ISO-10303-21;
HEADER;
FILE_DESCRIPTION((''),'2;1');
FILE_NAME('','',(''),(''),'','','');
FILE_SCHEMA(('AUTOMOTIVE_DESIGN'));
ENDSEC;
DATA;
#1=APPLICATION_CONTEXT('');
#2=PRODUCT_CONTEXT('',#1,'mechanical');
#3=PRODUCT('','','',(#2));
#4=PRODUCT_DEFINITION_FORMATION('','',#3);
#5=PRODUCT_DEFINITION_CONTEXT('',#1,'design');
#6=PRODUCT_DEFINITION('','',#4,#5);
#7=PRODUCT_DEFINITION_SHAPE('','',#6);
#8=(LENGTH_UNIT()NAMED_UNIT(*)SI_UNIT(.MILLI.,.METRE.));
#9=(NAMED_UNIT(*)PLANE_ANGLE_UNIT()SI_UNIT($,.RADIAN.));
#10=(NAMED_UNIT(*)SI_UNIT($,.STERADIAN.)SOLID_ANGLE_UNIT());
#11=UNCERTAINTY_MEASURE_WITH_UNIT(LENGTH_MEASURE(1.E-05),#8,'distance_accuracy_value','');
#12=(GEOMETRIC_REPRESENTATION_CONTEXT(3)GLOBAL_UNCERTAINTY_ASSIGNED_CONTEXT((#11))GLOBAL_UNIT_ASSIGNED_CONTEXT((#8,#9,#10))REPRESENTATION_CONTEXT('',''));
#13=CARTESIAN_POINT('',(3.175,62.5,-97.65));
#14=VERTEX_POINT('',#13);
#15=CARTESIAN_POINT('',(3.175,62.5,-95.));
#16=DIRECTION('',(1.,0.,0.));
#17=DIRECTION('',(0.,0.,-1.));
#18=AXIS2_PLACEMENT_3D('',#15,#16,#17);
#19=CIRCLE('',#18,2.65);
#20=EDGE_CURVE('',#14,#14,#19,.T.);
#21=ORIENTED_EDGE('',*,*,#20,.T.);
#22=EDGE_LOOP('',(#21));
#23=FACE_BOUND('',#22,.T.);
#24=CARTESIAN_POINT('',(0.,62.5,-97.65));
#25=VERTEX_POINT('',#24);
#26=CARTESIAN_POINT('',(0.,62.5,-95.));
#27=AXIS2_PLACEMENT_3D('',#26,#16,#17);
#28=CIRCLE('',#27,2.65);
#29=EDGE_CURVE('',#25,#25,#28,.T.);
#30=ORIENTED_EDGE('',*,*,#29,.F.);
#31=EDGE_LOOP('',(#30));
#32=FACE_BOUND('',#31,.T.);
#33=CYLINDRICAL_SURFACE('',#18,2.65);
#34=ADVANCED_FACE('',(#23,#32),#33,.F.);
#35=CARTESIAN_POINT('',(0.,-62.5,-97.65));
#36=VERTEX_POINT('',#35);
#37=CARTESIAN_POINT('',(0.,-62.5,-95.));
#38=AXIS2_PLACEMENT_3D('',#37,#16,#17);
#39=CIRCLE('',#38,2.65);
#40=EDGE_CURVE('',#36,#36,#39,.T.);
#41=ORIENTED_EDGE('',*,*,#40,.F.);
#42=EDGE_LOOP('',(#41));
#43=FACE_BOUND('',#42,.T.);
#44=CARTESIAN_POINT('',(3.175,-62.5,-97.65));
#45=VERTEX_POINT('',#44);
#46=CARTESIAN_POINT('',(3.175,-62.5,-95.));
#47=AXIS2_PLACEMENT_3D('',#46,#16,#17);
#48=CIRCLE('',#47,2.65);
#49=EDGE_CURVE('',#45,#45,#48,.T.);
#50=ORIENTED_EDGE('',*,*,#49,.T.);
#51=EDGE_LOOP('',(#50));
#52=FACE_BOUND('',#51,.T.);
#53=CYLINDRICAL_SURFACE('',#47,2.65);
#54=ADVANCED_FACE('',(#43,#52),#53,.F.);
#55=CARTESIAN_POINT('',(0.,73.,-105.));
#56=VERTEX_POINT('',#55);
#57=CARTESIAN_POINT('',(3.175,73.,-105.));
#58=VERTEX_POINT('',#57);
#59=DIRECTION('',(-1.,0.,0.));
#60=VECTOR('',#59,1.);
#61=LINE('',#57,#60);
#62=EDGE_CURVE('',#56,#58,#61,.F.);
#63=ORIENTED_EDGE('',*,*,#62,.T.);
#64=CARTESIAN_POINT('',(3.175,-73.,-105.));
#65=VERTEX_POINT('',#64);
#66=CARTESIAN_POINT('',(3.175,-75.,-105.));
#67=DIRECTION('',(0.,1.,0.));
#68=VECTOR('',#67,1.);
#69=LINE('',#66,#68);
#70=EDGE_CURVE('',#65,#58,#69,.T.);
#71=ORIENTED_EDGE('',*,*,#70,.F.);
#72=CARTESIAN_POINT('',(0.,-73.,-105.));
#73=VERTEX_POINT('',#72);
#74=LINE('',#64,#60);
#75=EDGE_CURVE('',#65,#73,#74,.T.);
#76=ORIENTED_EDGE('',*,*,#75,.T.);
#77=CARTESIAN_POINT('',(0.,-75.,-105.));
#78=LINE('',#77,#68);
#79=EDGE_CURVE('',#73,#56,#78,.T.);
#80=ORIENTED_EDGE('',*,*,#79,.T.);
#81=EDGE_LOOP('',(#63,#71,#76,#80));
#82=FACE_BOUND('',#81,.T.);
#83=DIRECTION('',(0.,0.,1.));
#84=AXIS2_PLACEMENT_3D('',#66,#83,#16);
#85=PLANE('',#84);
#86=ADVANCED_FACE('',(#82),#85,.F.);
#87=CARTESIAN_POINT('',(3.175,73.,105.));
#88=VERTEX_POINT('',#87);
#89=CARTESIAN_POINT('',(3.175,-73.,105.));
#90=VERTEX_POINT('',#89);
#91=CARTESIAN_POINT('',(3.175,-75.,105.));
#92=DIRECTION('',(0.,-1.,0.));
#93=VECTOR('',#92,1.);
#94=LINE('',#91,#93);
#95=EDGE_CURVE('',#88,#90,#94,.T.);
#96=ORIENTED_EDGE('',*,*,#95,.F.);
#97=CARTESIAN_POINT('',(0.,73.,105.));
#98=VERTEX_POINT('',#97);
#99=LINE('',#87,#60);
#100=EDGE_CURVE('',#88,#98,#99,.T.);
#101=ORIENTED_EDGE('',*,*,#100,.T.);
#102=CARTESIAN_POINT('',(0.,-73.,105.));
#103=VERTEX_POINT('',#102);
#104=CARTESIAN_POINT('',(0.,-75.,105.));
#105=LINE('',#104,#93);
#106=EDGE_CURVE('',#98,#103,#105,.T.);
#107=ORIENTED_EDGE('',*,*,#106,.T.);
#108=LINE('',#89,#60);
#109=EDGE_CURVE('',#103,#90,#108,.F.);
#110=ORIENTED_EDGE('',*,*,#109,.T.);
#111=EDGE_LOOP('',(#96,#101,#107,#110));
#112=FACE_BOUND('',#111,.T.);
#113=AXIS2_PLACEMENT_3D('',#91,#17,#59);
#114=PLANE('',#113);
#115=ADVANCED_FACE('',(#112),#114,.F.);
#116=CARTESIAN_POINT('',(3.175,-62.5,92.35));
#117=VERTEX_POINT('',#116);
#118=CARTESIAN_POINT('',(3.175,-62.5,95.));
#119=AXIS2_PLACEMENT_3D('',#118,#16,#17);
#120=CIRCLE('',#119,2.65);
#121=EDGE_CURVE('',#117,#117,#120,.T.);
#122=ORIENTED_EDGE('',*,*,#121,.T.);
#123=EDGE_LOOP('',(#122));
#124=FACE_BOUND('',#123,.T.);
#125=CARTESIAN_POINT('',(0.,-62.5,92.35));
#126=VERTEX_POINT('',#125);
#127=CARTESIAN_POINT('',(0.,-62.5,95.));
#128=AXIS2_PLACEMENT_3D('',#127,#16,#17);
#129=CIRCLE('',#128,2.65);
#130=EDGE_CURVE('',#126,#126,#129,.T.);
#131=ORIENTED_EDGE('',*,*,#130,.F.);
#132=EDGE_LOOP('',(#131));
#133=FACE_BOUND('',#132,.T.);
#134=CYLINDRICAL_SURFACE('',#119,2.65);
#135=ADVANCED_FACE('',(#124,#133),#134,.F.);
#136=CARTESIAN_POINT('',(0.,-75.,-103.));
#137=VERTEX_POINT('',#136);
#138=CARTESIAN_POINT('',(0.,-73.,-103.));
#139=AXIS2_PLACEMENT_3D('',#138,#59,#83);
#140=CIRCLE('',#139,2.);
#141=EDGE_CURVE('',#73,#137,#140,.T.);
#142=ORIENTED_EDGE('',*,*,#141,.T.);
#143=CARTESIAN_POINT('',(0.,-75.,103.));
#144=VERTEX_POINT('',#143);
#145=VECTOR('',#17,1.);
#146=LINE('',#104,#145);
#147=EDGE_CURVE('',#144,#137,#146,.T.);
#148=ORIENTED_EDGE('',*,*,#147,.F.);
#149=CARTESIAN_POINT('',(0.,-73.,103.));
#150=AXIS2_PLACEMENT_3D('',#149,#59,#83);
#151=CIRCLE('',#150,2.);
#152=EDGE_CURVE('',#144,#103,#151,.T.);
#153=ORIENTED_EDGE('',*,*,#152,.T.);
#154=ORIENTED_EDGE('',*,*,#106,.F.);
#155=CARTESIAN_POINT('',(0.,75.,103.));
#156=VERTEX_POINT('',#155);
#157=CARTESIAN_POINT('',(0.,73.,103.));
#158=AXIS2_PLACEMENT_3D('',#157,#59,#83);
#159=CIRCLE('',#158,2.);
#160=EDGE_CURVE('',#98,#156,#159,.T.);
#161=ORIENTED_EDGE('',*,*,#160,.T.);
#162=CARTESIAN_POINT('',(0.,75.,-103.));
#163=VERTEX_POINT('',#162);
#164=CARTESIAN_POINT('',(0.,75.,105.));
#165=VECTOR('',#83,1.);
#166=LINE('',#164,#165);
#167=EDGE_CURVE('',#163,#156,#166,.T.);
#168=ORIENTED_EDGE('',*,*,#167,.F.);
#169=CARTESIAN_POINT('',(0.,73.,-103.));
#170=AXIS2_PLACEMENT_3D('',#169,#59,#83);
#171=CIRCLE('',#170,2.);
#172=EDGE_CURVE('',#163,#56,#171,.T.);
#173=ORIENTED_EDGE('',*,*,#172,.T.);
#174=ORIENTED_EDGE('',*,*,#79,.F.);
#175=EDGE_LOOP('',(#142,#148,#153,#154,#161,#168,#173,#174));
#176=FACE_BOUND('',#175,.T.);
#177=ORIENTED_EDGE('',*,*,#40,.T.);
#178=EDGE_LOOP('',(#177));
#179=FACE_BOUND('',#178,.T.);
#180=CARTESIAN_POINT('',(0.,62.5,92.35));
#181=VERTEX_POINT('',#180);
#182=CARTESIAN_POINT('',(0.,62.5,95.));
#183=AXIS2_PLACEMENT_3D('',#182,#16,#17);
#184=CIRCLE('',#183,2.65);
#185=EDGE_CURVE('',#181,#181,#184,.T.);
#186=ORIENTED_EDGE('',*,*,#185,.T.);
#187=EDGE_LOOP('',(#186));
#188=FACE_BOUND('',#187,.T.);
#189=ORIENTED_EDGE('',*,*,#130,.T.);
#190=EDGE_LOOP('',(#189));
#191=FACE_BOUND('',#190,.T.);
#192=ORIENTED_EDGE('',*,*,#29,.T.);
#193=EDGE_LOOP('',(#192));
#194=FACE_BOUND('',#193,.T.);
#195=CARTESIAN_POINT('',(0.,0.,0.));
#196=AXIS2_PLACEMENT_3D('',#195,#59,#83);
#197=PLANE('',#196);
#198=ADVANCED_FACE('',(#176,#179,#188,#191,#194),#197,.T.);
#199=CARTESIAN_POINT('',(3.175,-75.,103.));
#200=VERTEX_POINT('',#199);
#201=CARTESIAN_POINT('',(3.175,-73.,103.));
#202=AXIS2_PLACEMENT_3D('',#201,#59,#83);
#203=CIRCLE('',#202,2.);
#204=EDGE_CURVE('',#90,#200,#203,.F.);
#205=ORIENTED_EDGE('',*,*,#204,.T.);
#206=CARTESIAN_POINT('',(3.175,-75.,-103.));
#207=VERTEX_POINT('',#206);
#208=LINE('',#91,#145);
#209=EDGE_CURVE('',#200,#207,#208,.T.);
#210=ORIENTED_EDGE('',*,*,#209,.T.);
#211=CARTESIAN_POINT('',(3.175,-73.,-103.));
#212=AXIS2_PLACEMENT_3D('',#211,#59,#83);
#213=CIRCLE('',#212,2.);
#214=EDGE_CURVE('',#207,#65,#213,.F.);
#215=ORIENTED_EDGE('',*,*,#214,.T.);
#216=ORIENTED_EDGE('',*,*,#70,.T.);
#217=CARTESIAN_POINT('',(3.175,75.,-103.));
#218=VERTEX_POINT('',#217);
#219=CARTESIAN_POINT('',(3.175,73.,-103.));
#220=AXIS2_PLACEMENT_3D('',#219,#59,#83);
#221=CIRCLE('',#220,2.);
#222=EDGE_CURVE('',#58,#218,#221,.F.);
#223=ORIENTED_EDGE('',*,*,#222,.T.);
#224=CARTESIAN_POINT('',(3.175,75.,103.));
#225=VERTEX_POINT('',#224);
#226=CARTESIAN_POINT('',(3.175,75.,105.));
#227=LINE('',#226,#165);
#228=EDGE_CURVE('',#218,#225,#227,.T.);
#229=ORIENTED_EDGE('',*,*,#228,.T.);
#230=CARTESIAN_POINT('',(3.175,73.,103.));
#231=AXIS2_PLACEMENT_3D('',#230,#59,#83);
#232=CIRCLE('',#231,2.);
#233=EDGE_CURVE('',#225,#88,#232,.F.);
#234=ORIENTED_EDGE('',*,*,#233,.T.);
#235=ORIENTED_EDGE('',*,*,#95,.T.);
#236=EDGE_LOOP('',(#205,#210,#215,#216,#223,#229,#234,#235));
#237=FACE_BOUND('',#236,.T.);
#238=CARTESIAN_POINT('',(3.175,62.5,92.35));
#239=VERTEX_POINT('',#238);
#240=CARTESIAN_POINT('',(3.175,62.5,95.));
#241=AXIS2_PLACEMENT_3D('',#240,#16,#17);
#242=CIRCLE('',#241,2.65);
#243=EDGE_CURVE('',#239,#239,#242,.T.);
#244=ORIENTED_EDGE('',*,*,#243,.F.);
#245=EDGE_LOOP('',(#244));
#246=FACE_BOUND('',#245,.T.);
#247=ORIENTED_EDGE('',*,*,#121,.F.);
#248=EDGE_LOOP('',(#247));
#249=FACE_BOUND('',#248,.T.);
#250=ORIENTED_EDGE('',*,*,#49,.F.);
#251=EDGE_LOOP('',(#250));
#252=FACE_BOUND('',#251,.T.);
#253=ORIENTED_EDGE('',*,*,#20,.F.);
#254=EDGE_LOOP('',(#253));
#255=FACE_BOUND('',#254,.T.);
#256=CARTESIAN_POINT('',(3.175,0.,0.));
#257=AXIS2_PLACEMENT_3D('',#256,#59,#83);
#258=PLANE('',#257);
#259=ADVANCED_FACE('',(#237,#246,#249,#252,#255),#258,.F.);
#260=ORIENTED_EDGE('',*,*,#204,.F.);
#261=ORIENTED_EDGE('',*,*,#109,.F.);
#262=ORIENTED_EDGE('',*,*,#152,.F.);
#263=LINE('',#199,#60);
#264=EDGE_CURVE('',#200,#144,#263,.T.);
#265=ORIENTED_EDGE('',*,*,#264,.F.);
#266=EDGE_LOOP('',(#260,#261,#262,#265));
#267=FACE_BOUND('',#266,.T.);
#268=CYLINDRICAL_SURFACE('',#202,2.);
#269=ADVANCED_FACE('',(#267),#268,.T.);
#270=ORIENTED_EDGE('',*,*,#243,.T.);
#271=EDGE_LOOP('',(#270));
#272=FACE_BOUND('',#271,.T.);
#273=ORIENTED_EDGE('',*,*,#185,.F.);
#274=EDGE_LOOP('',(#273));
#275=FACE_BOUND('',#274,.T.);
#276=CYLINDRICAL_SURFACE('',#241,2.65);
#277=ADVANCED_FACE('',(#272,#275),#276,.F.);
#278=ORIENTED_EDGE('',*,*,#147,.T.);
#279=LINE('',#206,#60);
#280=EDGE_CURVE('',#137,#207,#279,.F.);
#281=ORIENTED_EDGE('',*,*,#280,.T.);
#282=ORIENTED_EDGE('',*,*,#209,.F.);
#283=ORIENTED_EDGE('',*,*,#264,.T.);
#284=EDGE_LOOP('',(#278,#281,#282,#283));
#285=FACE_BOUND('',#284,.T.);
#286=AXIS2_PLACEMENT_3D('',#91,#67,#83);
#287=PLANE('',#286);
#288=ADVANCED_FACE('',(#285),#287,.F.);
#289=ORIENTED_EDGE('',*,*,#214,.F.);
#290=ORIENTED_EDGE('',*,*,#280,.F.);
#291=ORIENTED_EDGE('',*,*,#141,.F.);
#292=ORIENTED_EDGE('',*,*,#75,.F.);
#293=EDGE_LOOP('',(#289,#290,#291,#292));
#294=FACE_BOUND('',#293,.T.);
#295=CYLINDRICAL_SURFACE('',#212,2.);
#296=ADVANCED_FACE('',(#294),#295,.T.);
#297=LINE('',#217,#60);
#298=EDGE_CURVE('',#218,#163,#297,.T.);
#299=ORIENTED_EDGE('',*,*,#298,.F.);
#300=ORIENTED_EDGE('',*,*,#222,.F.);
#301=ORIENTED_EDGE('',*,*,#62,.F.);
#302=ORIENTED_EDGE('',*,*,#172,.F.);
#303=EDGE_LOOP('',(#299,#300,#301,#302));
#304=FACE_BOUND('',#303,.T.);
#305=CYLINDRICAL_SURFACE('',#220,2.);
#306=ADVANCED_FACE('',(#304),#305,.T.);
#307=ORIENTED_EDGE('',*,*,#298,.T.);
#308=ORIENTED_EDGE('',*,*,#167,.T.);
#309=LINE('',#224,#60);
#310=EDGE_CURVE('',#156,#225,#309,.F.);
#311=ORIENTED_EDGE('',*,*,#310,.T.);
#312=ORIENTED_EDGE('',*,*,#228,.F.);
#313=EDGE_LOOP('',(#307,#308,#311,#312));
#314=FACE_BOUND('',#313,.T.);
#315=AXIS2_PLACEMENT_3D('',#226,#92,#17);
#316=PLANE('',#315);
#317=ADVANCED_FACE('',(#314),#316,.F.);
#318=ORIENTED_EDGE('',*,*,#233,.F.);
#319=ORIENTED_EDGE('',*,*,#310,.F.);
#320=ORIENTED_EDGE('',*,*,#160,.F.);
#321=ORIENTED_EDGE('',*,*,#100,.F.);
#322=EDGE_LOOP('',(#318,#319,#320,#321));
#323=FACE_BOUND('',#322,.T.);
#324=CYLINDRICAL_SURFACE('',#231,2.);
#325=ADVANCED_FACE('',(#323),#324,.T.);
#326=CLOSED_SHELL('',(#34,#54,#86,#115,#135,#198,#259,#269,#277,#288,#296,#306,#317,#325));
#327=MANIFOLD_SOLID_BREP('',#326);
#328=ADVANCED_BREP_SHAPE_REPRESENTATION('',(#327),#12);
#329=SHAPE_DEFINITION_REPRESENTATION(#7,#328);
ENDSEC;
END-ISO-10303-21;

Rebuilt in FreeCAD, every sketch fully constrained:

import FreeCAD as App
import Part
import Sketcher


def edges_at(feature, points):
    """Names of the edges that pass closest to the given points."""
    edges = feature.Shape.Edges
    near = lambda p: min(range(len(edges)), key=lambda i: edges[i].distToShape(Part.Vertex(*p))[0])
    return sorted({f"Edge{near(p) + 1}" for p in points})

doc = App.newDocument("Part")
body = doc.addObject("PartDesign::Body", "Body")

sketch1 = body.newObject("Sketcher::SketchObject", "Sketch")
sketch1.AttachmentSupport = (doc.getObject("YZ_Plane"), [""])
sketch1.MapMode = "FlatFace"
sketch1.addGeometry([
    Part.LineSegment(App.Vector(75, 105, 0), App.Vector(-75, 105, 0)),
    Part.LineSegment(App.Vector(-75, 105, 0), App.Vector(-75, -105, 0)),
    Part.LineSegment(App.Vector(-75, -105, 0), App.Vector(75, -105, 0)),
    Part.LineSegment(App.Vector(75, -105, 0), App.Vector(75, 105, 0)),
], False)
sketch1.addConstraint([
    Sketcher.Constraint("Coincident", 0, 2, 1, 1),
    Sketcher.Constraint("Coincident", 1, 2, 2, 1),
    Sketcher.Constraint("Coincident", 2, 2, 3, 1),
    Sketcher.Constraint("Coincident", 3, 2, 0, 1),
    Sketcher.Constraint("Horizontal", 0),
    Sketcher.Constraint("Vertical", 1),
    Sketcher.Constraint("Horizontal", 2),
    Sketcher.Constraint("Vertical", 3),
    Sketcher.Constraint("Symmetric", 0, 2, 2, 2, -1, 1),
    Sketcher.Constraint("DistanceX", 0, 2, 0, 1, 150.0),
    Sketcher.Constraint("DistanceY", 1, 2, 1, 1, 210.0),
])
pad1 = body.newObject("PartDesign::Pad", "Pad")
pad1.Profile = sketch1
pad1.Length = 3.175

sketch2 = body.newObject("Sketcher::SketchObject", "Sketch001")
sketch2.AttachmentSupport = (doc.getObject("YZ_Plane"), [""])
sketch2.MapMode = "FlatFace"
sketch2.AttachmentOffset = App.Placement(App.Vector(0, 0, 3.175), App.Rotation())
sketch2.addGeometry([
    Part.Circle(App.Vector(62.5, 95, 0), App.Vector(0, 0, 1), 2.6),
    Part.Circle(App.Vector(62.5, -95, 0), App.Vector(0, 0, 1), 2.6),
    Part.Circle(App.Vector(-62.5, 95, 0), App.Vector(0, 0, 1), 2.6),
    Part.Circle(App.Vector(-62.5, -95, 0), App.Vector(0, 0, 1), 2.6),
], False)
sketch2.addConstraint([
    Sketcher.Constraint("Equal", 0, 1),
    Sketcher.Constraint("Equal", 1, 2),
    Sketcher.Constraint("Equal", 2, 3),
    Sketcher.Constraint("Symmetric", 1, 3, 2, 3, -1, 1),
    Sketcher.Constraint("Symmetric", 0, 3, 3, 3, -1, 1),
    Sketcher.Constraint("Symmetric", 0, 3, 2, 3, -2),
    Sketcher.Constraint("Diameter", 0, 5.3),
    Sketcher.Constraint("DistanceY", -1, 1, 0, 3, 95.0),
    Sketcher.Constraint("DistanceX", 2, 3, 0, 3, 125.0),
])
doc.recompute()
hole = body.newObject("PartDesign::Hole", "Hole")
hole.Profile = sketch2
hole.ThreadType = "None"
hole.Diameter = 5.3
hole.DepthType = "ThroughAll"
doc.recompute()

fillet = body.newObject("PartDesign::Fillet", "Fillet")
fillet.Base = (hole, edges_at(hole, [
    (1.587, -75, -105),
    (1.587, -75, 105),
    (1.587, 75, 105),
    (1.587, 75, -105),
]))
fillet.Radius = 2

doc.recompute()
